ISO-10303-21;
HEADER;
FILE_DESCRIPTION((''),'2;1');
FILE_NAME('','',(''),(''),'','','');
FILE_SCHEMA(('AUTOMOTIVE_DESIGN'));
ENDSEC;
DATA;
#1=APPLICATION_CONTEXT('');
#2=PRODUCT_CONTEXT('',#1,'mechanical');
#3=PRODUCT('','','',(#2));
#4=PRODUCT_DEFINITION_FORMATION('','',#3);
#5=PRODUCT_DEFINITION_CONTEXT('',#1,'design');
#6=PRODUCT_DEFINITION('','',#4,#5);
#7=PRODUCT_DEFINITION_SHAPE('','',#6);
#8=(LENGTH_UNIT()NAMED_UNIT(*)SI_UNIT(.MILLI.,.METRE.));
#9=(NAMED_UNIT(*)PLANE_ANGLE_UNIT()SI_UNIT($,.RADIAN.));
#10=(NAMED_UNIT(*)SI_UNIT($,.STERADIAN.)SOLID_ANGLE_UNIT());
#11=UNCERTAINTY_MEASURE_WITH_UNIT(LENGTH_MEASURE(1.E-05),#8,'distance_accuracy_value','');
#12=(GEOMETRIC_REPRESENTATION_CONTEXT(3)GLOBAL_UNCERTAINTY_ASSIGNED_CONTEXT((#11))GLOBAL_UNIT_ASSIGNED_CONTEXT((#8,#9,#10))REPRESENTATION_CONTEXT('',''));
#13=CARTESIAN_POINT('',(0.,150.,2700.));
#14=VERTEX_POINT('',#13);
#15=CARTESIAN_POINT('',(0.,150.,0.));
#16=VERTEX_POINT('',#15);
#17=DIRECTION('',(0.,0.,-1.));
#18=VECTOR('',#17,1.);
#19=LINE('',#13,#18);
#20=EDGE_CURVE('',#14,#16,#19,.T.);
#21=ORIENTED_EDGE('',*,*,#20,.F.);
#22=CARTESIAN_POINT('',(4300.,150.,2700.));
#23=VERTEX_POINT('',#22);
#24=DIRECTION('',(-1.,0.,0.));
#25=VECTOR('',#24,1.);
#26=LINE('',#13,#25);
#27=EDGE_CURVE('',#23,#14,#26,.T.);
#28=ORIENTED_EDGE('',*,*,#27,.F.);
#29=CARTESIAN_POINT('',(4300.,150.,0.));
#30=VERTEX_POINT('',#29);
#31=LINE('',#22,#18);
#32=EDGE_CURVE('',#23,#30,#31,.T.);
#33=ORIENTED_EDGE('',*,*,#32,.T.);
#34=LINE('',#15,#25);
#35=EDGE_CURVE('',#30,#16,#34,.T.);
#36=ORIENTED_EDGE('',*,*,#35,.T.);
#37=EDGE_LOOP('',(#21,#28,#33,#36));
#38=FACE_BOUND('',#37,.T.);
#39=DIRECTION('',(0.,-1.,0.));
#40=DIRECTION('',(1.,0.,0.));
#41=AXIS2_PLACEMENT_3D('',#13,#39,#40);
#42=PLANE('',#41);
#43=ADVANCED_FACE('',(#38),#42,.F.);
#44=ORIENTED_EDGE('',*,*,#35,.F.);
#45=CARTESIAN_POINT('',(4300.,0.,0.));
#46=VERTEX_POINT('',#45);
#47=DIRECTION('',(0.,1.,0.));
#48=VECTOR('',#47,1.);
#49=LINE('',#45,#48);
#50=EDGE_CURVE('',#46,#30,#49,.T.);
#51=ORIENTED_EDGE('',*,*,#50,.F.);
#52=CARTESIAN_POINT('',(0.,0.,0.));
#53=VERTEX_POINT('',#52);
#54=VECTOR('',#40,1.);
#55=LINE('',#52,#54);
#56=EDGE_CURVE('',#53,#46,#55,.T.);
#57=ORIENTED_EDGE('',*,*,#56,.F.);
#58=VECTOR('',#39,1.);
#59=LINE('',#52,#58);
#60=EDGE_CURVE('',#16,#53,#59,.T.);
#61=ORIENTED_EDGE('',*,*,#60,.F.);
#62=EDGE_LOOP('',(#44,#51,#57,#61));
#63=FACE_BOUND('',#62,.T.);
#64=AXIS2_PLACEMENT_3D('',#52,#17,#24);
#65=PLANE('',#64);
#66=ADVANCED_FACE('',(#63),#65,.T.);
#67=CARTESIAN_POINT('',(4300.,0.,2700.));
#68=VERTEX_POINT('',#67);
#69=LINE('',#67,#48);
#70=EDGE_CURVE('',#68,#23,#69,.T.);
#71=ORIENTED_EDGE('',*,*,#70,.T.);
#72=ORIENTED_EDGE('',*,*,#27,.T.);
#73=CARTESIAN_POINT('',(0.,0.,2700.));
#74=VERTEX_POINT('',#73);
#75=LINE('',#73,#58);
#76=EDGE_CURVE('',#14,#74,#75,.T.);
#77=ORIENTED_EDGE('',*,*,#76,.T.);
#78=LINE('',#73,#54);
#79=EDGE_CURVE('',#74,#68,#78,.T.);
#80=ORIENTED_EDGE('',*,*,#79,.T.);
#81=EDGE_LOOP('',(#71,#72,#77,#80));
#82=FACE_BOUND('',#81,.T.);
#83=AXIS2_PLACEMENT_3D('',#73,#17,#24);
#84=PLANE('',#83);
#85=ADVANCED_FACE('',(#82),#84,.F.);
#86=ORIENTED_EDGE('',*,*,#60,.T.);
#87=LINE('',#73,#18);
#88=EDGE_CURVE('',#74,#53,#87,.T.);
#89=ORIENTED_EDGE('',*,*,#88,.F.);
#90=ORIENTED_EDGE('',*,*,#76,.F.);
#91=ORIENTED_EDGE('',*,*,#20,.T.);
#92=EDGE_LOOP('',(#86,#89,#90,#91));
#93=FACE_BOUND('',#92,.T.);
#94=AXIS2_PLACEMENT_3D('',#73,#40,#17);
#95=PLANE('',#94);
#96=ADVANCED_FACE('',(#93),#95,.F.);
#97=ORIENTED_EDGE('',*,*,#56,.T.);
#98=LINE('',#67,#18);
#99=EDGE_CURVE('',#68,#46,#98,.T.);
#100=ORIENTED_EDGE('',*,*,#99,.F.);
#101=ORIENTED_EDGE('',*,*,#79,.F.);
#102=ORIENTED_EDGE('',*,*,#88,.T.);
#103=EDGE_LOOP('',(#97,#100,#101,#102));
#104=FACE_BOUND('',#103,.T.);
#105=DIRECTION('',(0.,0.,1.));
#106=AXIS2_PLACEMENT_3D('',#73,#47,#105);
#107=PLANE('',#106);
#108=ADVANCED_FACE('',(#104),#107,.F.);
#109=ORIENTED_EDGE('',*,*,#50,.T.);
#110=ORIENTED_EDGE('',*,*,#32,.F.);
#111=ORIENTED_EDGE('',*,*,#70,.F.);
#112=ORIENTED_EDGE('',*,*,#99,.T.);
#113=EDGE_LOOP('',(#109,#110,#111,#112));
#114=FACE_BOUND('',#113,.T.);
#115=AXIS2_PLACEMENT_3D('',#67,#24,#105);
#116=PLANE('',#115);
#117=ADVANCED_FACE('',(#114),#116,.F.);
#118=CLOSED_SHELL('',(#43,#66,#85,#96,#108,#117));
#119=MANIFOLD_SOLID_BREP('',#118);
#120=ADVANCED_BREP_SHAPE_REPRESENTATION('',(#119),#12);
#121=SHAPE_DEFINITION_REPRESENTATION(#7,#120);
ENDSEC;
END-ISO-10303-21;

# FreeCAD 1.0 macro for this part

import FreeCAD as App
import Part
import Sketcher

V = App.Vector
Q = App.Units.Quantity

doc = App.newDocument("Part")
body = doc.addObject("PartDesign::Body", "Body")

# Sketch on XY plane
sketch1 = body.newObject("Sketcher::SketchObject", "Sketch")
sketch1.AttachmentSupport = (doc.getObject("XY_Plane"), [""])
sketch1.MapMode = "FlatFace"
sketch1.addGeometry(Part.LineSegment(V(0, 150, 0), V(0, 0, 0)), False)
sketch1.addGeometry(Part.LineSegment(V(0, 0, 0), V(4300, 0, 0)), False)
sketch1.addGeometry(Part.LineSegment(V(4300, 0, 0), V(4300, 150, 0)), False)
sketch1.addGeometry(Part.LineSegment(V(4300, 150, 0), V(0, 150, 0)), False)
sketch1.addConstraint(Sketcher.Constraint("Coincident", 0, 2, 1, 1))
sketch1.addConstraint(Sketcher.Constraint("Coincident", 1, 2, 2, 1))
sketch1.addConstraint(Sketcher.Constraint("Coincident", 2, 2, 3, 1))
sketch1.addConstraint(Sketcher.Constraint("Coincident", 3, 2, 0, 1))
sketch1.addConstraint(Sketcher.Constraint("Vertical", 0))
sketch1.addConstraint(Sketcher.Constraint("Horizontal", 1))
sketch1.addConstraint(Sketcher.Constraint("Vertical", 2))
sketch1.addConstraint(Sketcher.Constraint("Horizontal", 3))
sketch1.addConstraint(Sketcher.Constraint("Coincident", 0, 2, -1, 1))
sketch1.addConstraint(Sketcher.Constraint("DistanceX", 1, 1, 1, 2, Q("4300 mm")))
sketch1.addConstraint(Sketcher.Constraint("DistanceY", 0, 2, 0, 1, Q("150 mm")))
pad1 = body.newObject("PartDesign::Pad", "Pad")
pad1.Profile = sketch1
pad1.Length = 2700

doc.recompute()
